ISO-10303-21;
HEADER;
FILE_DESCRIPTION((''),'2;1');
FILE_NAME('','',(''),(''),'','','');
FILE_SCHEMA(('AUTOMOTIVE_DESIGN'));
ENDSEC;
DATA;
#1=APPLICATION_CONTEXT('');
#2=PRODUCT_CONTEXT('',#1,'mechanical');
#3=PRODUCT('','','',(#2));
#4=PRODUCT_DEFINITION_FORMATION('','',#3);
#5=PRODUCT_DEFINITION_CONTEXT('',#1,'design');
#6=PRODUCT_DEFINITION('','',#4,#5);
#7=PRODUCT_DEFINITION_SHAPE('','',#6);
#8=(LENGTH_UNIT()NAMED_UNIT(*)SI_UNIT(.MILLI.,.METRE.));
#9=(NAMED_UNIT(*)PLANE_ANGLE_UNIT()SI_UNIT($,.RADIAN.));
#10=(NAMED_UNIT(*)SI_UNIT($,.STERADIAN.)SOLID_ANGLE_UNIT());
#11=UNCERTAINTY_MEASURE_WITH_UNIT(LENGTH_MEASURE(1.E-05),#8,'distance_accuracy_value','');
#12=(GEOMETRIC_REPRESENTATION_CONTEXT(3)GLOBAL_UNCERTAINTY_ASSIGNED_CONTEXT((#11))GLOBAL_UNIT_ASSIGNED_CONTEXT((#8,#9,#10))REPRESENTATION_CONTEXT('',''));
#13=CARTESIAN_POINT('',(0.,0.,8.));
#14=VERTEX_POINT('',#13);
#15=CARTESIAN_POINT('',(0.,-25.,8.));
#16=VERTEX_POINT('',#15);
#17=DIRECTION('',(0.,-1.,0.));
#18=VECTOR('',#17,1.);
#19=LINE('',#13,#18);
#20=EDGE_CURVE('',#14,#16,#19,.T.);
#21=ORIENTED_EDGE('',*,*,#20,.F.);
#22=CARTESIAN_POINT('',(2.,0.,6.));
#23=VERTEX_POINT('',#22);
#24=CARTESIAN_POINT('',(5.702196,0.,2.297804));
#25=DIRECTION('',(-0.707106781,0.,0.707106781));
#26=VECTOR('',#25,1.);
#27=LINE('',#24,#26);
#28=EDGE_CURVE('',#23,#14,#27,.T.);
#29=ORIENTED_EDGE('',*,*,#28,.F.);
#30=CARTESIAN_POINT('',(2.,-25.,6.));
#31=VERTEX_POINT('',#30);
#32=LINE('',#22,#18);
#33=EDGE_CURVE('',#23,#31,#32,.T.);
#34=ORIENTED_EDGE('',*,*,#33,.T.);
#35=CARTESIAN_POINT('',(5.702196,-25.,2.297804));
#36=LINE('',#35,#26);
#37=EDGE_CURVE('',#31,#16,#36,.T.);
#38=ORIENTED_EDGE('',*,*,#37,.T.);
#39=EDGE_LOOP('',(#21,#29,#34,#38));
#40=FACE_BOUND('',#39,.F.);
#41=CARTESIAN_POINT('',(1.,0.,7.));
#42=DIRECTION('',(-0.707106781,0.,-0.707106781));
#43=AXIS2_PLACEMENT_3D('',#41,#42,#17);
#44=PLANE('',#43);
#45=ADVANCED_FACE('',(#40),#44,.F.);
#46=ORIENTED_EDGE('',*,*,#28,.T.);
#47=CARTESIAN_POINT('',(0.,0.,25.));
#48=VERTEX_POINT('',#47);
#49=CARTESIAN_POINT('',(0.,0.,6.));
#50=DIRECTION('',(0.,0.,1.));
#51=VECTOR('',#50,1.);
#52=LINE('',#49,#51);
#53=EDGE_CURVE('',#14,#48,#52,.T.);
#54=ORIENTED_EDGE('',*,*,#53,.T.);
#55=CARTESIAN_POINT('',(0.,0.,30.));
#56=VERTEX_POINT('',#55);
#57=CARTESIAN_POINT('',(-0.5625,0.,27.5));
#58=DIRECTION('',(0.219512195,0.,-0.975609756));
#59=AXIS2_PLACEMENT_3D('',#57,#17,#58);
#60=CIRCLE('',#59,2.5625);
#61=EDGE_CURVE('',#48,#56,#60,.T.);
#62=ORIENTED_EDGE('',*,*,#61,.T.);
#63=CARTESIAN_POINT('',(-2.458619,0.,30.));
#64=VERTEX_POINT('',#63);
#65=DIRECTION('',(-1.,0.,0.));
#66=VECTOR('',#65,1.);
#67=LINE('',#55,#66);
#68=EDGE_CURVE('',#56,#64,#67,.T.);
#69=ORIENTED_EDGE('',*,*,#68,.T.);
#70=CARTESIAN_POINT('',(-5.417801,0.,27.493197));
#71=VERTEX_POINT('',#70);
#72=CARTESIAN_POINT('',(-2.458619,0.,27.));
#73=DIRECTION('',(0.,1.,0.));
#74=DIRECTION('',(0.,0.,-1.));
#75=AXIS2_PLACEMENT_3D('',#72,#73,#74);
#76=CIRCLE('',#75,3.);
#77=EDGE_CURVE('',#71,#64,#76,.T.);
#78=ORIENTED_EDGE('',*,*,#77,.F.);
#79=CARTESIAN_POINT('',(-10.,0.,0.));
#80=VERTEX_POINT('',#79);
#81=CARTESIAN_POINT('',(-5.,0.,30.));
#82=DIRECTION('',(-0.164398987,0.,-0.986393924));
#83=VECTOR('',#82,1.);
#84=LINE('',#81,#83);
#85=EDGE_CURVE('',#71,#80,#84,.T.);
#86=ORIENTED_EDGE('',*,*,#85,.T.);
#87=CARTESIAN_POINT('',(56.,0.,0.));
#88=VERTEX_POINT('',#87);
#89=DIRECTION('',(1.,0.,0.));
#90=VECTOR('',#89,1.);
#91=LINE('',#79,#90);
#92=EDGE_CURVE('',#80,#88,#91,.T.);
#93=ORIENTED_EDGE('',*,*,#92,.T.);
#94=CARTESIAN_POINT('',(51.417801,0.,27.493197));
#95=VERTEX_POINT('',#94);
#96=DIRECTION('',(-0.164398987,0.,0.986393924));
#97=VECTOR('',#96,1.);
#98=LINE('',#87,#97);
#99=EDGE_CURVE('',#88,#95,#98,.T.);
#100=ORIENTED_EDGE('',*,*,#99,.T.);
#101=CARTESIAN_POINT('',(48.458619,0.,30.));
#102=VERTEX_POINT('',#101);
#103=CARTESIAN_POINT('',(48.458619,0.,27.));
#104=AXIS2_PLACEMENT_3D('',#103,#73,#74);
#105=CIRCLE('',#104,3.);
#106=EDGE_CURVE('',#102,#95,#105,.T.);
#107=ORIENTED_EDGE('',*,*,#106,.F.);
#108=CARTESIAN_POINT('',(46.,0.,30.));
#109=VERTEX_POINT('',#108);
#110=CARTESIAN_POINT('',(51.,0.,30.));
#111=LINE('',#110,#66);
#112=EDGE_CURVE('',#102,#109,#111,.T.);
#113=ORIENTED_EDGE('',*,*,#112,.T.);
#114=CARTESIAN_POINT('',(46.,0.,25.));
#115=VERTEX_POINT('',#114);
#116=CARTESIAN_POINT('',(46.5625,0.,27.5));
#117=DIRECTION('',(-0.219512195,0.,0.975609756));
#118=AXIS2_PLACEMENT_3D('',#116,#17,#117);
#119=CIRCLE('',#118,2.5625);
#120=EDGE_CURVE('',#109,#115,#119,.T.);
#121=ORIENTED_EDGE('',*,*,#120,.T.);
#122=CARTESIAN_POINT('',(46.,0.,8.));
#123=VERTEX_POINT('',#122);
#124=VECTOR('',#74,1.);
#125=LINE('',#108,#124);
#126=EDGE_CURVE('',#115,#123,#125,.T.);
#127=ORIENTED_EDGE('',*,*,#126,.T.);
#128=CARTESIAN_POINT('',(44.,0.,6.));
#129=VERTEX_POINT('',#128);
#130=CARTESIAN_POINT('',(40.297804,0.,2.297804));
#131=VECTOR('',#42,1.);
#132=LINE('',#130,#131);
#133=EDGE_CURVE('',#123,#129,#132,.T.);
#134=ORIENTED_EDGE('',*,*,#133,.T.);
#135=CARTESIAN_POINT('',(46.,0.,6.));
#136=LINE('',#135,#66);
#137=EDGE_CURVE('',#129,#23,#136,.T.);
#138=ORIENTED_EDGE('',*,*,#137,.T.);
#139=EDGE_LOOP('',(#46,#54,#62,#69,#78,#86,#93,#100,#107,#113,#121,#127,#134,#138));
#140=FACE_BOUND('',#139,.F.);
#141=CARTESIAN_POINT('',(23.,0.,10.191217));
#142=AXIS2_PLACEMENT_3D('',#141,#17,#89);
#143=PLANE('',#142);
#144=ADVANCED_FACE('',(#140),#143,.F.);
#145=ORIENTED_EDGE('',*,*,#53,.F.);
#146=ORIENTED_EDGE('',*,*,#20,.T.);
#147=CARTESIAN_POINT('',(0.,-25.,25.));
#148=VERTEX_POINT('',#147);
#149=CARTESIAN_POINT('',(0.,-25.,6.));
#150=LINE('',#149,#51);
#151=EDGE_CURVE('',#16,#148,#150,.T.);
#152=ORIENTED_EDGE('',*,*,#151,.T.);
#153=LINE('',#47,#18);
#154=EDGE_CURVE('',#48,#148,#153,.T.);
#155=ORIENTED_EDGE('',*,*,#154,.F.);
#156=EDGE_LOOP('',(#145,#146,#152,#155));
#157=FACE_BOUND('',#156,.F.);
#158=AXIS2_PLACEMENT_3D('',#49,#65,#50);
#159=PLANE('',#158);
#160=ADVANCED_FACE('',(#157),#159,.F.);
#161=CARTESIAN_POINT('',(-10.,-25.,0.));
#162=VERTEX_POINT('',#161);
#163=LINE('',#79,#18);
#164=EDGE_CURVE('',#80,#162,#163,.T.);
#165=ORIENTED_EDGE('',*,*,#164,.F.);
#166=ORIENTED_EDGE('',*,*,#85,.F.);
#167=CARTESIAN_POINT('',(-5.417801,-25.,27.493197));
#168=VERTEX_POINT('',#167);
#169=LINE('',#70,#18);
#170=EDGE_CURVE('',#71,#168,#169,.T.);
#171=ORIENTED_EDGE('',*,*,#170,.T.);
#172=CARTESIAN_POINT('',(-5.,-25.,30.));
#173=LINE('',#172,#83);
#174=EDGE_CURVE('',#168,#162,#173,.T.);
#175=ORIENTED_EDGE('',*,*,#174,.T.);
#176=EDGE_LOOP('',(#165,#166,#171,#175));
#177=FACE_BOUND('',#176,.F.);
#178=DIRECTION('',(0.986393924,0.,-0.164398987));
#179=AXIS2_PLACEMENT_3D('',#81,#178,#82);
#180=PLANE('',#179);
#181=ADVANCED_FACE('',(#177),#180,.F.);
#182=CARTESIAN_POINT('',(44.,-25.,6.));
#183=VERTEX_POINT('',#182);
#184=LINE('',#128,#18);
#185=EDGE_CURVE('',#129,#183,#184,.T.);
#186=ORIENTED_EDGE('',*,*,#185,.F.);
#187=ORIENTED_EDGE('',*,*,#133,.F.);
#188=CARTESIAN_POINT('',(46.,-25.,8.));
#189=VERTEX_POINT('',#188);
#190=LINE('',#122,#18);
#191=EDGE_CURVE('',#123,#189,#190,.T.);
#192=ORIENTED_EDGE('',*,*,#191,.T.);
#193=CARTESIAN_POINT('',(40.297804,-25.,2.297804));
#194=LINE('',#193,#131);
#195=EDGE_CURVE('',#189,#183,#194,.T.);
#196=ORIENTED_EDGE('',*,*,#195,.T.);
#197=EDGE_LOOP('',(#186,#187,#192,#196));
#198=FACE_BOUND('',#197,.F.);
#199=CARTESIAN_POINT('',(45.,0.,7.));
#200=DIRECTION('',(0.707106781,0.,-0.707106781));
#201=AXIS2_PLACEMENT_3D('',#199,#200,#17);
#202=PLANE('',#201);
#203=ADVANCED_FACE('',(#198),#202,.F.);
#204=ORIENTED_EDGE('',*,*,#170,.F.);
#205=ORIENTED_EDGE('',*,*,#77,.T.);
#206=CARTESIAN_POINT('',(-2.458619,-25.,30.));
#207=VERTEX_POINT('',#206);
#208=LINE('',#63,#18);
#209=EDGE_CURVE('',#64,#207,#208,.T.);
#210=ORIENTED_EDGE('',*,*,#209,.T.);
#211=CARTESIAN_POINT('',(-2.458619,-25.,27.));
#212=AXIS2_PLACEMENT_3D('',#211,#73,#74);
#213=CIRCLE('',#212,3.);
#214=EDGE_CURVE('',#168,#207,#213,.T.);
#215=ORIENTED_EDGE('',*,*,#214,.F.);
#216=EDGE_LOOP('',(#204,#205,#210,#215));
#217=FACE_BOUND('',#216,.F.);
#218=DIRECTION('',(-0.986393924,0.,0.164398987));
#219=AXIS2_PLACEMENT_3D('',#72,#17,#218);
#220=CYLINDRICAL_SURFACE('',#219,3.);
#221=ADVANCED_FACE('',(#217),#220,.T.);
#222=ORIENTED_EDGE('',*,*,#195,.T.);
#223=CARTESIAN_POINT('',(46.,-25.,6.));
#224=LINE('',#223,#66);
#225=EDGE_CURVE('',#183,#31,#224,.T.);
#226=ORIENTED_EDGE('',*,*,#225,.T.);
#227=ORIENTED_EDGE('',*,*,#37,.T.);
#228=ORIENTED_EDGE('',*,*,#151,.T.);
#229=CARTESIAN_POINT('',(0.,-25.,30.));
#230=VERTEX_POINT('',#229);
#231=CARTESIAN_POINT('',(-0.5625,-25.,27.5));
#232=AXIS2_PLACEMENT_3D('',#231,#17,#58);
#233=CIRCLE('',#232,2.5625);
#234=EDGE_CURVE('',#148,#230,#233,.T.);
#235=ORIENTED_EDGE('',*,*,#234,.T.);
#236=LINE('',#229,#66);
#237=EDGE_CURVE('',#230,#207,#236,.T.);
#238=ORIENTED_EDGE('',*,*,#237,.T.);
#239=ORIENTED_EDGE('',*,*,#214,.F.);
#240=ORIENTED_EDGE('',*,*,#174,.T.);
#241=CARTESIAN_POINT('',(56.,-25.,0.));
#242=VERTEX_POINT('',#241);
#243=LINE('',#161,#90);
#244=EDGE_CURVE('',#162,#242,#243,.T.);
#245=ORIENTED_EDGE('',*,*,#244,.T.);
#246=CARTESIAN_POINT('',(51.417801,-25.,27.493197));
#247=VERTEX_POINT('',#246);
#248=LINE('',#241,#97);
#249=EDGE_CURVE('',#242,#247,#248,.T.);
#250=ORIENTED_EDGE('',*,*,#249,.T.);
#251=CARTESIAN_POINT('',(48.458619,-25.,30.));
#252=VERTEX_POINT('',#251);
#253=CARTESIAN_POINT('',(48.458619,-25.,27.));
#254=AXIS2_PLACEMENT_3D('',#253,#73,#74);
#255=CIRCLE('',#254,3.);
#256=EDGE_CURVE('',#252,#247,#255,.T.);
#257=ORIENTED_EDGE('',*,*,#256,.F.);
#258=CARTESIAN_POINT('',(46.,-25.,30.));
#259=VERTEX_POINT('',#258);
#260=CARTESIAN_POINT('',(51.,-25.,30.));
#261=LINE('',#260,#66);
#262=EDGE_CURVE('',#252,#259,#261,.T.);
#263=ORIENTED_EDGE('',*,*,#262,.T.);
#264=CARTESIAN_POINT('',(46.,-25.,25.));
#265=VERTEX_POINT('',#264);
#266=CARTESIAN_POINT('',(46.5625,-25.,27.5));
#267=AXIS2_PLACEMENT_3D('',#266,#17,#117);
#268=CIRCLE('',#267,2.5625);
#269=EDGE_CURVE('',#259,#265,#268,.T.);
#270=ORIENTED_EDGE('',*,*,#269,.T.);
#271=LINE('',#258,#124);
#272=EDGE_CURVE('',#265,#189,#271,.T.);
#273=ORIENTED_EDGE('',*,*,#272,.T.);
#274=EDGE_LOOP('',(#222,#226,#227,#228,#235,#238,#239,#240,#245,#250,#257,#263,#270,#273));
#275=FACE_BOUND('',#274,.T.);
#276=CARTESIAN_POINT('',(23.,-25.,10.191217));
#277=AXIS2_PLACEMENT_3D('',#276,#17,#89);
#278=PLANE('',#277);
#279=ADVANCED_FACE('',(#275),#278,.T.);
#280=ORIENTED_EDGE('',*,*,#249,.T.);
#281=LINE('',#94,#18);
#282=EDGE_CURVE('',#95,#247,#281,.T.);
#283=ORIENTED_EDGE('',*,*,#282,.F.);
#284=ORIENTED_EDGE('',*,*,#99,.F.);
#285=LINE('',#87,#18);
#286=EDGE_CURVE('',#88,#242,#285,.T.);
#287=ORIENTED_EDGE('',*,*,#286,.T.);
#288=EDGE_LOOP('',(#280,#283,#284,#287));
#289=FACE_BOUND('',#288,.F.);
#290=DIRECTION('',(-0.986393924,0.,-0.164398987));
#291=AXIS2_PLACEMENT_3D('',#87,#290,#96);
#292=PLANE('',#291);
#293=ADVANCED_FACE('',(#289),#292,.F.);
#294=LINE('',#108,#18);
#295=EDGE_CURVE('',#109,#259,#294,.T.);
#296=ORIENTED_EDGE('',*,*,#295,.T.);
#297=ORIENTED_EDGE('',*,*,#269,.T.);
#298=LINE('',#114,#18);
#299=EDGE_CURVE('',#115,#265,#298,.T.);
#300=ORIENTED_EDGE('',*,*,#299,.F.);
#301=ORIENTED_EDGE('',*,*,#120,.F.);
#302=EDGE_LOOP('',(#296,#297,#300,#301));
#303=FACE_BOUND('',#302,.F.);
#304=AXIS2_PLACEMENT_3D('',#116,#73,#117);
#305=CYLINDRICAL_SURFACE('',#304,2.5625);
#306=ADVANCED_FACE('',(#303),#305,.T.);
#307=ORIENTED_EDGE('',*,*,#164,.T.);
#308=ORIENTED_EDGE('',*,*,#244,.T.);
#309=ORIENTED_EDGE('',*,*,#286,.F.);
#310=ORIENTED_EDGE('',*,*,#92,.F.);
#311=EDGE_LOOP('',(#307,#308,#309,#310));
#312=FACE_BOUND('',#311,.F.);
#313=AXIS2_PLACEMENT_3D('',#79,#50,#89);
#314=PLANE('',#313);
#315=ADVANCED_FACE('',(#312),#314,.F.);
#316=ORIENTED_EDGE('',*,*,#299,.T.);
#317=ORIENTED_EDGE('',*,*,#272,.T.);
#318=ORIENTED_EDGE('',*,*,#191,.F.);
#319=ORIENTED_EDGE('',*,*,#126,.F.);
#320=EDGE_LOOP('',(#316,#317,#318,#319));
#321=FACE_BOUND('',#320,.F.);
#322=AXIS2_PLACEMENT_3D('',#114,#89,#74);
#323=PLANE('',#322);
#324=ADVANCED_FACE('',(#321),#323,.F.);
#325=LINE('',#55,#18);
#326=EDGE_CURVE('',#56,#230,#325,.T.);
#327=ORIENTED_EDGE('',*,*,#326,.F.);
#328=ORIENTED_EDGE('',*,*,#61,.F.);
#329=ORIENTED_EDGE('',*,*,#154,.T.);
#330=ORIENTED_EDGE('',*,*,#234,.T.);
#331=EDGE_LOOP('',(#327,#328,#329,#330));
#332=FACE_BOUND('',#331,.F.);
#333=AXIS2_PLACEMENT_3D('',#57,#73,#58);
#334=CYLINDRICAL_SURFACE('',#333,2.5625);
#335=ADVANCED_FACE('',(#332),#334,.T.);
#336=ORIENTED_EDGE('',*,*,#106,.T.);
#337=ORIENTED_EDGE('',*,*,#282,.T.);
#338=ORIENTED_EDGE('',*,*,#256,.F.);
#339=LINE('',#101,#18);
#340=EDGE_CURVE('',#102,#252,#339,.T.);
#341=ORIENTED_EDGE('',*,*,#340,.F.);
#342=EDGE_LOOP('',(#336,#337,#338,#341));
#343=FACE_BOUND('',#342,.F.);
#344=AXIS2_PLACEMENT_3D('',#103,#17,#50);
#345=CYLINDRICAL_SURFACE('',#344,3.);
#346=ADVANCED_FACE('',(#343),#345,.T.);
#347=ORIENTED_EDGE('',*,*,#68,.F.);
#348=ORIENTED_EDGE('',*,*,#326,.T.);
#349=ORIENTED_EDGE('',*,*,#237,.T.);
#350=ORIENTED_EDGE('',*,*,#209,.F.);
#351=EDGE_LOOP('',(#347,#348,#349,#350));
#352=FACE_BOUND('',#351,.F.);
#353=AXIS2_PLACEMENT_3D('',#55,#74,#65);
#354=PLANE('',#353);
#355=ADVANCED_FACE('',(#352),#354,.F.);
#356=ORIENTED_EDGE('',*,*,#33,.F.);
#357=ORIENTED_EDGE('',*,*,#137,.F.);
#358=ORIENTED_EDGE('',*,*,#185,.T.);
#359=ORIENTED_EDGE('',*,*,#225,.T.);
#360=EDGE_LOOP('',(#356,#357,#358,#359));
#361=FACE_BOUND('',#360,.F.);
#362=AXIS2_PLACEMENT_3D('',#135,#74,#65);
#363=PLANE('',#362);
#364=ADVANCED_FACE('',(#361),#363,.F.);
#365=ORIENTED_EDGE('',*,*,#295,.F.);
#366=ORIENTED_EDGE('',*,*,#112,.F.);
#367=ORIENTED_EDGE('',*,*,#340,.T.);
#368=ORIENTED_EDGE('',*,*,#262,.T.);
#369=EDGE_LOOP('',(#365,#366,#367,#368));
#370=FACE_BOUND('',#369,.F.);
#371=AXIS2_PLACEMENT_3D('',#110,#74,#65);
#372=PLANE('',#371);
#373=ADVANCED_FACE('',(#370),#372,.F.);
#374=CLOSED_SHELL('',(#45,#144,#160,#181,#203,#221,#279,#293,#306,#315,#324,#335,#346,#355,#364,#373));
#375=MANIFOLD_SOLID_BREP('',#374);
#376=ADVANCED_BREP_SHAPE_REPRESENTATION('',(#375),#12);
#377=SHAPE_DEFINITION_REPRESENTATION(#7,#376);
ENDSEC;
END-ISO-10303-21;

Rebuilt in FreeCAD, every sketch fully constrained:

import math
import FreeCAD as App
import Part
import Sketcher

V = App.Vector
Q = App.Units.Quantity


def edges_at(feature, points):
    """Names of the edges that pass closest to the given points."""
    edges = feature.Shape.Edges
    near = lambda p: min(range(len(edges)), key=lambda i: edges[i].distToShape(Part.Vertex(*p))[0])
    return sorted({f"Edge{near(p) + 1}" for p in points})

doc = App.newDocument("Part")
body = doc.addObject("PartDesign::Body", "Body")

# Sketch on XZ plane
sketch1 = doc.addObject("Sketcher::SketchObject", "Sketch")
body.addObject(sketch1)
sketch1.AttachmentSupport = (doc.XZ_Plane, [""])
sketch1.MapMode = "FlatFace"
sketch1.addGeometry(Part.LineSegment(V(-5, 30, 0), V(-10, 0, 0)), False)
sketch1.addGeometry(Part.LineSegment(V(-10, 0, 0), V(56, 0, 0)), False)
sketch1.addGeometry(Part.LineSegment(V(56, 0, 0), V(51, 30, 0)), False)
sketch1.addGeometry(Part.LineSegment(V(51, 30, 0), V(46, 30, 0)), False)
sketch1.addGeometry(Part.ArcOfCircle(Part.Circle(V(46.6, 27.5, 0), V(0, 0, 1), 2.6), math.radians(103), math.radians(257)), False)
sketch1.addGeometry(Part.LineSegment(V(46, 25, 0), V(46, 6, 0)), False)
sketch1.addGeometry(Part.LineSegment(V(46, 6, 0), V(0, 6, 0)), False)
sketch1.addGeometry(Part.LineSegment(V(0, 6, 0), V(0, 25, 0)), False)
sketch1.addGeometry(Part.ArcOfCircle(Part.Circle(V(-0.6, 27.5, 0), V(0, 0, 1), 2.6), math.radians(-77), math.radians(77)), False)
sketch1.addGeometry(Part.LineSegment(V(0, 30, 0), V(-5, 30, 0)), False)
sketch1.addConstraint(Sketcher.Constraint("Coincident", 0, 2, 1, 1))
sketch1.addConstraint(Sketcher.Constraint("Coincident", 1, 2, 2, 1))
sketch1.addConstraint(Sketcher.Constraint("Coincident", 2, 2, 3, 1))
sketch1.addConstraint(Sketcher.Constraint("Coincident", 3, 2, 4, 1))
sketch1.addConstraint(Sketcher.Constraint("Coincident", 4, 2, 5, 1))
sketch1.addConstraint(Sketcher.Constraint("Coincident", 5, 2, 6, 1))
sketch1.addConstraint(Sketcher.Constraint("Coincident", 6, 2, 7, 1))
sketch1.addConstraint(Sketcher.Constraint("Coincident", 7, 2, 8, 1))
sketch1.addConstraint(Sketcher.Constraint("Coincident", 8, 2, 9, 1))
sketch1.addConstraint(Sketcher.Constraint("Coincident", 9, 2, 0, 1))
sketch1.addConstraint(Sketcher.Constraint("Horizontal", 1))
sketch1.addConstraint(Sketcher.Constraint("Horizontal", 3))
sketch1.addConstraint(Sketcher.Constraint("Vertical", 5))
sketch1.addConstraint(Sketcher.Constraint("Horizontal", 6))
sketch1.addConstraint(Sketcher.Constraint("Vertical", 7))
sketch1.addConstraint(Sketcher.Constraint("Horizontal", 9))
sketch1.addConstraint(Sketcher.Constraint("Equal", 4, 8))
sketch1.addConstraint(Sketcher.Constraint("PointOnObject", 0, 2, -1))
sketch1.addConstraint(Sketcher.Constraint("PointOnObject", 6, 2, -2))
sketch1.addConstraint(Sketcher.Constraint("PointOnObject", 8, 2, -2))
sketch1.addConstraint(Sketcher.Constraint("Horizontal", 4, 3, 8, 3))
sketch1.addConstraint(Sketcher.Constraint("Horizontal", 4, 2, 7, 2))
sketch1.addConstraint(Sketcher.Constraint("Horizontal", 3, 2, 8, 2))
sketch1.addConstraint(Sketcher.Constraint("Equal", 3, 9))
sketch1.addConstraint(Sketcher.Constraint("Equal", 0, 2))
sketch1.addConstraint(Sketcher.Constraint("DistanceX", 1, 1, 1, 2, Q("66 mm")))
sketch1.addConstraint(Sketcher.Constraint("DistanceX", 3, 2, 3, 1, Q("5 mm")))
sketch1.addConstraint(Sketcher.Constraint("DistanceX", 6, 2, 6, 1, Q("46 mm")))
sketch1.addConstraint(Sketcher.Constraint("DistanceY", 5, 2, 5, 1, Q("19 mm")))
sketch1.addConstraint(Sketcher.Constraint("DistanceY", -1, 1, 2, 2, Q("30 mm")))
sketch1.addConstraint(Sketcher.Constraint("DistanceY", -1, 1, 4, 2, Q("25 mm")))
sketch1.addConstraint(Sketcher.Constraint("Radius", 4, Q("2.5625 mm")))
pad1 = doc.addObject("PartDesign::Pad", "Pad")
body.addObject(pad1)
pad1.Profile = sketch1
pad1.Length = 25
doc.recompute()

chamfer = doc.addObject("PartDesign::Chamfer", "Chamfer")
body.addObject(chamfer)
chamfer.Base = (pad1, edges_at(pad1, [(46, -12.5, 6), (0, -12.5, 6)]))
chamfer.Size = 2
doc.recompute()

fillet = doc.addObject("PartDesign::Fillet", "Fillet")
body.addObject(fillet)
fillet.Base = (chamfer, edges_at(chamfer, [(51, -12.5, 30), (-5, -12.5, 30)]))
fillet.Radius = 3

doc.recompute()
